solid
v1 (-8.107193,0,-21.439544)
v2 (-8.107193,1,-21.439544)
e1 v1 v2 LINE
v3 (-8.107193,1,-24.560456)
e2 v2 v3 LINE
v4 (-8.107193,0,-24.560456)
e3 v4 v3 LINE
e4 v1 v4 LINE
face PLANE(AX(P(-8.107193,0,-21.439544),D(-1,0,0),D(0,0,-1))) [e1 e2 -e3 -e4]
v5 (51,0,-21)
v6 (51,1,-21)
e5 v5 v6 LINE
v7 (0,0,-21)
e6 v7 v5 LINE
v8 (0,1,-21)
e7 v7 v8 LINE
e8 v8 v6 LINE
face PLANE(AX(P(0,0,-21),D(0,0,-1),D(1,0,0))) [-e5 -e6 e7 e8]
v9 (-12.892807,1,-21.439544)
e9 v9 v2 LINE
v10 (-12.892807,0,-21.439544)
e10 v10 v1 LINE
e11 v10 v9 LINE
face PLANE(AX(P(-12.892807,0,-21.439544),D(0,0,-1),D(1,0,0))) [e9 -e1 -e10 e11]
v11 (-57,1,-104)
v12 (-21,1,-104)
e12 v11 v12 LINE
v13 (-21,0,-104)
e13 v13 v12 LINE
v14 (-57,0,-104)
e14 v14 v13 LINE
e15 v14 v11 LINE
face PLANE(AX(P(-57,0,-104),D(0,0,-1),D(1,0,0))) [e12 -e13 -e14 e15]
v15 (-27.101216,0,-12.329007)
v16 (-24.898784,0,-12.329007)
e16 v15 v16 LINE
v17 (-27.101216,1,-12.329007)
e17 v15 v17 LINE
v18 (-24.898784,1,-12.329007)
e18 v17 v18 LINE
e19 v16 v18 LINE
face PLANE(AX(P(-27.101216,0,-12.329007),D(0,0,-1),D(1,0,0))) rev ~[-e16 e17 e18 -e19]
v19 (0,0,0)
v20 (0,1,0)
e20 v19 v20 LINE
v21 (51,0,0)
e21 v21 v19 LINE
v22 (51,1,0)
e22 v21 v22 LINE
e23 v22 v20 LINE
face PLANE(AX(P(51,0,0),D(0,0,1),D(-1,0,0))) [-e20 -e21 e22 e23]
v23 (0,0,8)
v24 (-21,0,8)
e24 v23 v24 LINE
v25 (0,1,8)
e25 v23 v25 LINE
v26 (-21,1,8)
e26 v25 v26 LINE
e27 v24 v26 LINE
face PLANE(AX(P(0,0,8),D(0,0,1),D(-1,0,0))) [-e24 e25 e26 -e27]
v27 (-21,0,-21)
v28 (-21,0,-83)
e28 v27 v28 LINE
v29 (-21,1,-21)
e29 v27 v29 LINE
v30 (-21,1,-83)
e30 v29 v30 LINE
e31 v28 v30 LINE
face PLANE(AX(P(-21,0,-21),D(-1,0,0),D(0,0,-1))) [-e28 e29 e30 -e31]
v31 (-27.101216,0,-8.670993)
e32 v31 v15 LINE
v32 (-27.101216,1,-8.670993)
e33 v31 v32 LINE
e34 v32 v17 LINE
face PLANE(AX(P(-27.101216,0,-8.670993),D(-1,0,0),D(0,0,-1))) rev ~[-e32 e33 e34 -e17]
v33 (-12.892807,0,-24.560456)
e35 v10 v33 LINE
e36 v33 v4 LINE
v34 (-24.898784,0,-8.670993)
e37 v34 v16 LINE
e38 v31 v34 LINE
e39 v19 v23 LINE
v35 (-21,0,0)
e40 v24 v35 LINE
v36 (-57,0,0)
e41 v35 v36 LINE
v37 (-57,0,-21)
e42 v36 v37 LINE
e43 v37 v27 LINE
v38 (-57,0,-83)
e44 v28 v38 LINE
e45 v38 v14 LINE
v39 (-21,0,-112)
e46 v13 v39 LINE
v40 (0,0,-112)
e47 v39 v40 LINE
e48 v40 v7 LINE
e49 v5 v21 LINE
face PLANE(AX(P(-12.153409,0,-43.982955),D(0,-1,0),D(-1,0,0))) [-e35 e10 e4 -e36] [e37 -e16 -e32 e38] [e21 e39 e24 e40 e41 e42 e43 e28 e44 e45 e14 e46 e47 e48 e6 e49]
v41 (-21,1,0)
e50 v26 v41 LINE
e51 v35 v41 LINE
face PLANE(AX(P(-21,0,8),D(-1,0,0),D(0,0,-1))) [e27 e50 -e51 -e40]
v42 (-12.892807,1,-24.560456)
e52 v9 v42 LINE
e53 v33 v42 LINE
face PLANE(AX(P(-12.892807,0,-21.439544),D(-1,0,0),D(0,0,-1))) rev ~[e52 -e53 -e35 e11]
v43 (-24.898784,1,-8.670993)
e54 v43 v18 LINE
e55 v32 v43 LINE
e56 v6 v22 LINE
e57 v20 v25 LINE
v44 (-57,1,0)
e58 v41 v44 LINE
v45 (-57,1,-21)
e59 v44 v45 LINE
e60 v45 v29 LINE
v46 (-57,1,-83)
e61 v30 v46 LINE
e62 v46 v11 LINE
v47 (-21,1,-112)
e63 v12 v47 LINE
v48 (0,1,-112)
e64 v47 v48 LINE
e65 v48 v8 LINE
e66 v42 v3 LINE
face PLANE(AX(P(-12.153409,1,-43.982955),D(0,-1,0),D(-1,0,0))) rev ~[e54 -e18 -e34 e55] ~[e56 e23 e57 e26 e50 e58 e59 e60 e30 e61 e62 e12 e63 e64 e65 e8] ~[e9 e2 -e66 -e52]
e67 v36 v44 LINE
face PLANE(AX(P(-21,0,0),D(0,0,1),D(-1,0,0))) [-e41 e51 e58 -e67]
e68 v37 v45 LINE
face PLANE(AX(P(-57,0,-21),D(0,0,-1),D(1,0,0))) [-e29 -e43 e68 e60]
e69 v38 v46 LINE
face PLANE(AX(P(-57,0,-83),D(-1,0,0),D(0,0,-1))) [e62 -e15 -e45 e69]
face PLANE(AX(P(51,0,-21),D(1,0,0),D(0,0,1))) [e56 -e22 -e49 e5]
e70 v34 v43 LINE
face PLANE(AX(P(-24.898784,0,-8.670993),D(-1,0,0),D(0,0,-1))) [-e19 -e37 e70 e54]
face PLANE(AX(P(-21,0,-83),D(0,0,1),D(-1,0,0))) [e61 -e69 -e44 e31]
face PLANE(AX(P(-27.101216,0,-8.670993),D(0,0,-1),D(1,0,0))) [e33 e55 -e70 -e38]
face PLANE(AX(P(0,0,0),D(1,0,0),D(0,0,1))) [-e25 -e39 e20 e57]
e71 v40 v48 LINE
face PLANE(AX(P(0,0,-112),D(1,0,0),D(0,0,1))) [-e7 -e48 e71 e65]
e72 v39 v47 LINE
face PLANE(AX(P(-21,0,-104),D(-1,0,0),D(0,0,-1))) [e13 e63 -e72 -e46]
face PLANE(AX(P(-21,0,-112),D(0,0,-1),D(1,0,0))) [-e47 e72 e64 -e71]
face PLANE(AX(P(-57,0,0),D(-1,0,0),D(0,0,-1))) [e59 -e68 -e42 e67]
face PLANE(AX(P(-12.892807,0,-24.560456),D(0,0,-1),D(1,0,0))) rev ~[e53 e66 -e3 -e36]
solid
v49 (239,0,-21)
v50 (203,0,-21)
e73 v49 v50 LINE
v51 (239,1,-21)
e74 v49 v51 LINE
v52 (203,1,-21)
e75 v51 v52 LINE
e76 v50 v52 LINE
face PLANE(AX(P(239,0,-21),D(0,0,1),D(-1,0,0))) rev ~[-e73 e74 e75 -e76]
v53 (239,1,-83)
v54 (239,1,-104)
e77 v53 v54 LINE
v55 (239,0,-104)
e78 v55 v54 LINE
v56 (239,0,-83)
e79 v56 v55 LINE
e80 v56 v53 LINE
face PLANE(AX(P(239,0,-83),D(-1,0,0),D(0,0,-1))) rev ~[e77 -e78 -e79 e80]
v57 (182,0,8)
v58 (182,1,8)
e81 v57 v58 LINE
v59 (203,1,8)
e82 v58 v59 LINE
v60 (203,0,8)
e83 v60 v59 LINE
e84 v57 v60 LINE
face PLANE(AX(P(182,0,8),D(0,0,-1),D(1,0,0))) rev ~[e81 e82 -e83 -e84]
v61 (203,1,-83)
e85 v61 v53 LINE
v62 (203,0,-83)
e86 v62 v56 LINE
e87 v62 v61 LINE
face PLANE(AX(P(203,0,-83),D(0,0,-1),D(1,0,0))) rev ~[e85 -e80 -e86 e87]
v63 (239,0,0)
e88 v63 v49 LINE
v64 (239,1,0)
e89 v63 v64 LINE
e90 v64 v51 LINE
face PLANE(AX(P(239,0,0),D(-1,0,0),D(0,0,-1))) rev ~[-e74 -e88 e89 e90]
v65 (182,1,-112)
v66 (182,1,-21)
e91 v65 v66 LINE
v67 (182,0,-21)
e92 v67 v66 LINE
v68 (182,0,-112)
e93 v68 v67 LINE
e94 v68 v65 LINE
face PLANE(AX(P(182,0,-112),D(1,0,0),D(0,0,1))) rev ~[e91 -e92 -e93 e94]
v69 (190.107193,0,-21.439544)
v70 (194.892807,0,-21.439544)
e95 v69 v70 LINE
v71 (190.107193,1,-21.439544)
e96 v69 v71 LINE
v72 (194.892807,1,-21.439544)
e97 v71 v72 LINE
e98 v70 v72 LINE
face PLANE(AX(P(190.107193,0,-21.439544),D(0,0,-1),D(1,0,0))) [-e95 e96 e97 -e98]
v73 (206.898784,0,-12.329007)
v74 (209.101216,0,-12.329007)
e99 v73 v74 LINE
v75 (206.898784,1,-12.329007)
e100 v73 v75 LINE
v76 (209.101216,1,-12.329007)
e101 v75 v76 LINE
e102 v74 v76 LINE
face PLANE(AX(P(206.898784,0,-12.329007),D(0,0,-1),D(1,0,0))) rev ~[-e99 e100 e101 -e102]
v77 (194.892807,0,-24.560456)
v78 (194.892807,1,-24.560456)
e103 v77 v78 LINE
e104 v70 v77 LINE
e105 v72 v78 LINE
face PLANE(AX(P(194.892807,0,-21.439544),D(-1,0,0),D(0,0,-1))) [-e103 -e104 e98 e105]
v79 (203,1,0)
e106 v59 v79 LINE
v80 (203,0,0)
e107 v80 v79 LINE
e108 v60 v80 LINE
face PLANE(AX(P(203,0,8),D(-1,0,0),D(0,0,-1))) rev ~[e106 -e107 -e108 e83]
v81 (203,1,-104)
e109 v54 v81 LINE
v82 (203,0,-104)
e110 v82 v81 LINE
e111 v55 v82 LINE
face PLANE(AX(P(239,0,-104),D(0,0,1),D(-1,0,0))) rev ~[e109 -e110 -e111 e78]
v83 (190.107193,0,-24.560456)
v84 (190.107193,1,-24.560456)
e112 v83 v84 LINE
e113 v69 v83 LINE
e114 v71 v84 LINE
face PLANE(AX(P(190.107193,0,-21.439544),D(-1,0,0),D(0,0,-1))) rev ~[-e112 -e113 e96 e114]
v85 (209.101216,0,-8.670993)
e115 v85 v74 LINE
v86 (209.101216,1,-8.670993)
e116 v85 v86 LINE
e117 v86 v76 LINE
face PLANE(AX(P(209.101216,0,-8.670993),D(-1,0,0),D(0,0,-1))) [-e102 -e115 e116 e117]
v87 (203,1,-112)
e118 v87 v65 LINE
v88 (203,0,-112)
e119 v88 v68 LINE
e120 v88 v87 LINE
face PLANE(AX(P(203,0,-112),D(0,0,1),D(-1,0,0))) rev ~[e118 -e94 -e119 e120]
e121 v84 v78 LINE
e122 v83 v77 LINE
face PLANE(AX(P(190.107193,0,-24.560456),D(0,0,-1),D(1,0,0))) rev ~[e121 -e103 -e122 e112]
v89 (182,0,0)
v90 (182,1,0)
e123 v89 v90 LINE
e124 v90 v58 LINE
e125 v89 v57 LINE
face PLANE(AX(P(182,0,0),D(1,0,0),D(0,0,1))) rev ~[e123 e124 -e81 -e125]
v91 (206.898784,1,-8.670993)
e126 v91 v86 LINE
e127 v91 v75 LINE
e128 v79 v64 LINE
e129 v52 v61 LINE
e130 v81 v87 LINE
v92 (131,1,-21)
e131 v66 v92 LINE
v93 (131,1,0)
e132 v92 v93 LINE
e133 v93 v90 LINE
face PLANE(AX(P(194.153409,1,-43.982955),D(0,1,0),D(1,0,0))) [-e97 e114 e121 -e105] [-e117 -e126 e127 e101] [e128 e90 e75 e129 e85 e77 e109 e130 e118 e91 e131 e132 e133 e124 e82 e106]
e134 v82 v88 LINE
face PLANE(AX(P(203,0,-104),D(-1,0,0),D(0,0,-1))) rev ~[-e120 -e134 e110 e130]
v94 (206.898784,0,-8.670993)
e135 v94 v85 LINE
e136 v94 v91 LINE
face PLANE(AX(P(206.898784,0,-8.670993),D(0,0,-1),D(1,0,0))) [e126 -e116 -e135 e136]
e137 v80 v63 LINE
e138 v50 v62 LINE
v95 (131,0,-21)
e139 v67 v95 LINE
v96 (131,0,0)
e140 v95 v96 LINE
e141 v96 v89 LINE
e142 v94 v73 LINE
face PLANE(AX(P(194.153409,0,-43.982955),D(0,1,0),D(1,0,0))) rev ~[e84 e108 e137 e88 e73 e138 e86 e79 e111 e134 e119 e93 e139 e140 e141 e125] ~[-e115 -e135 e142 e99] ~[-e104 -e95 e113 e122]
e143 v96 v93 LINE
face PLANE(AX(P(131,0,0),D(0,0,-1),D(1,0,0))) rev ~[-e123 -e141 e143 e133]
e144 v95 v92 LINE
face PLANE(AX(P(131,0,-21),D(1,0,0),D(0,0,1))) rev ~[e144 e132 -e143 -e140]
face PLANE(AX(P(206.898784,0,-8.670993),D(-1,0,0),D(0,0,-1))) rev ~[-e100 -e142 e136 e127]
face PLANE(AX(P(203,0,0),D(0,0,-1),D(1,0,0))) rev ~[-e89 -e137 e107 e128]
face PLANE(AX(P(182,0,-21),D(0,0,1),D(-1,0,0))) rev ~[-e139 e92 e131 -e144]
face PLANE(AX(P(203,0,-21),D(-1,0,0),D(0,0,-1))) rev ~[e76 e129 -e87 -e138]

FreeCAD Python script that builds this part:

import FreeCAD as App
import Part
import Sketcher


def add_polygon(sketch, points):
    """Adds a closed chain of lines whose ends are joined by coincident constraints."""
    first, n = sketch.GeometryCount, len(points)
    for a, b in zip(points, points[1:] + points[:1]):
        sketch.addGeometry(Part.LineSegment(App.Vector(*a, 0), App.Vector(*b, 0)), False)
    for i in range(n):
        sketch.addConstraint(Sketcher.Constraint("Coincident", first + i, 2, first + (i + 1) % n, 1))

doc = App.newDocument("Part")
params = doc.addObject("Spreadsheet::Sheet", "Params")
for row, (alias, value) in enumerate([
    ("sketch1_width", "51 mm"),
    ("sketch1_width2", "21 mm"),
    ("sketch1_width3", "36 mm"),
    ("sketch1_height", "8 mm"),
    ("sketch1_height2", "91 mm"),
    ("pad1_length", "1 mm"),
    ("sketch2_width", "21 mm"),
    ("sketch2_width2", "51 mm"),
    ("sketch2_width3", "36 mm"),
    ("sketch2_height", "8 mm"),
    ("sketch2_height2", "91 mm"),
    ("pad2_length", "1 mm"),
], start=1):
    params.set(f"A{row}", alias)
    params.set(f"B{row}", "=" + value)
    params.setAlias(f"B{row}", alias)

body = doc.addObject("PartDesign::Body", "Body")

sketch1 = body.newObject("Sketcher::SketchObject", "Sketch")
sketch1.AttachmentSupport = (doc.getObject("XZ_Plane"), [""])
sketch1.MapMode = "FlatFace"
add_polygon(sketch1, [(0, 8), (0, 0), (51, 0), (51, -21), (0, -21), (0, -112), (-21, -112), (-21, -104), (-57, -104), (-57, -83), (-21, -83), (-21, -21), (-57, -21), (-57, 0), (-21, 0), (-21, 8)])
add_polygon(sketch1, [(-27.1, -8.7), (-27.1, -12.3), (-24.9, -12.3), (-24.9, -8.7)])
add_polygon(sketch1, [(-12.9, -21.4), (-12.9, -24.6), (-8.1, -24.6), (-8.1, -21.4)])
sketch1.addConstraint([
    Sketcher.Constraint("Vertical", 0),
    Sketcher.Constraint("Horizontal", 1),
    Sketcher.Constraint("Vertical", 2),
    Sketcher.Constraint("Horizontal", 3),
    Sketcher.Constraint("Vertical", 4),
    Sketcher.Constraint("Horizontal", 5),
    Sketcher.Constraint("Vertical", 6),
    Sketcher.Constraint("Horizontal", 7),
    Sketcher.Constraint("Vertical", 8),
    Sketcher.Constraint("Horizontal", 9),
    Sketcher.Constraint("Vertical", 10),
    Sketcher.Constraint("Horizontal", 11),
    Sketcher.Constraint("Vertical", 12),
    Sketcher.Constraint("Horizontal", 13),
    Sketcher.Constraint("Vertical", 14),
    Sketcher.Constraint("Horizontal", 15),
    Sketcher.Constraint("Vertical", 16),
    Sketcher.Constraint("Horizontal", 17),
    Sketcher.Constraint("Vertical", 18),
    Sketcher.Constraint("Horizontal", 19),
    Sketcher.Constraint("Vertical", 20),
    Sketcher.Constraint("Horizontal", 21),
    Sketcher.Constraint("Vertical", 22),
    Sketcher.Constraint("Horizontal", 23),
    Sketcher.Constraint("Coincident", 0, 2, -1, 1),
    Sketcher.Constraint("PointOnObject", 3, 2, -2),
    Sketcher.Constraint("PointOnObject", 12, 2, -1),
    Sketcher.Constraint("Horizontal", 3, 2, 10, 2),
    Sketcher.Constraint("Vertical", 6, 2, 9, 2),
    Sketcher.Constraint("Vertical", 8, 2, 11, 2),
    Sketcher.Constraint("Vertical", 10, 2, 13, 2),
    Sketcher.Constraint("Equal", 15, 2),
    Sketcher.Constraint("Equal", 0, 6),
    Sketcher.Constraint("Equal", 2, 8),
    Sketcher.Constraint("DistanceX", 1, 1, 1, 2, 51.0),
    Sketcher.Constraint("DistanceX", 5, 2, 5, 1, 21.0),
    Sketcher.Constraint("DistanceX", 7, 2, 7, 1, 36.0),
    Sketcher.Constraint("DistanceY", 0, 2, 0, 1, 8.0),
    Sketcher.Constraint("DistanceY", 4, 2, 4, 1, 91.0),
    Sketcher.Constraint("DistanceX", 17, 1, 17, 2, 2.202432),
    Sketcher.Constraint("DistanceX", 21, 1, 21, 2, 4.785615),
    Sketcher.Constraint("DistanceY", 16, 2, 16, 1, 3.658014),
    Sketcher.Constraint("DistanceY", 20, 2, 20, 1, 3.120912),
    Sketcher.Constraint("DistanceY", 20, 2, 17, 2, 12.231449),
    Sketcher.Constraint("DistanceX", 16, 2, 20, 2, 14.208409),
    Sketcher.Constraint("DistanceX", 16, 2, -1, 1, 27.101216),
    Sketcher.Constraint("DistanceY", 16, 2, -1, 1, 12.329007),
])
sketch1.setExpression("Constraints[58]", "Params.sketch1_width")
sketch1.setExpression("Constraints[59]", "Params.sketch1_width2")
sketch1.setExpression("Constraints[60]", "Params.sketch1_width3")
sketch1.setExpression("Constraints[61]", "Params.sketch1_height")
sketch1.setExpression("Constraints[62]", "Params.sketch1_height2")
pad1 = body.newObject("PartDesign::Pad", "Pad")
pad1.Profile = sketch1
pad1.setExpression("Length", "Params.pad1_length")
pad1.Reversed = True
body2 = doc.addObject("PartDesign::Body", "Body001")

sketch2 = body2.newObject("Sketcher::SketchObject", "Sketch001")
sketch2.AttachmentSupport = (doc.getObject("XZ_Plane001"), [""])
sketch2.MapMode = "FlatFace"
add_polygon(sketch2, [(203, -104), (203, -112), (182, -112), (182, -21), (131, -21), (131, 0), (182, 0), (182, 8), (203, 8), (203, 0), (239, 0), (239, -21), (203, -21), (203, -83), (239, -83), (239, -104)])
add_polygon(sketch2, [(209.1, -8.7), (206.9, -8.7), (206.9, -12.3), (209.1, -12.3)])
add_polygon(sketch2, [(194.9, -21.4), (190.1, -21.4), (190.1, -24.6), (194.9, -24.6)])
sketch2.addConstraint([
    Sketcher.Constraint("Vertical", 0),
    Sketcher.Constraint("Horizontal", 1),
    Sketcher.Constraint("Vertical", 2),
    Sketcher.Constraint("Horizontal", 3),
    Sketcher.Constraint("Vertical", 4),
    Sketcher.Constraint("Horizontal", 5),
    Sketcher.Constraint("Vertical", 6),
    Sketcher.Constraint("Horizontal", 7),
    Sketcher.Constraint("Vertical", 8),
    Sketcher.Constraint("Horizontal", 9),
    Sketcher.Constraint("Vertical", 10),
    Sketcher.Constraint("Horizontal", 11),
    Sketcher.Constraint("Vertical", 12),
    Sketcher.Constraint("Horizontal", 13),
    Sketcher.Constraint("Vertical", 14),
    Sketcher.Constraint("Horizontal", 15),
    Sketcher.Constraint("Horizontal", 16),
    Sketcher.Constraint("Vertical", 17),
    Sketcher.Constraint("Horizontal", 18),
    Sketcher.Constraint("Vertical", 19),
    Sketcher.Constraint("Horizontal", 20),
    Sketcher.Constraint("Vertical", 21),
    Sketcher.Constraint("Horizontal", 22),
    Sketcher.Constraint("Vertical", 23),
    Sketcher.Constraint("PointOnObject", 4, 2, -1),
    Sketcher.Constraint("PointOnObject", 8, 2, -1),
    Sketcher.Constraint("Horizontal", 3, 2, 10, 2),
    Sketcher.Constraint("Vertical", 2, 2, 5, 2),
    Sketcher.Constraint("Vertical", 0, 2, 7, 2),
    Sketcher.Constraint("Vertical", 8, 2, 11, 2),
    Sketcher.Constraint("Vertical", 10, 2, 13, 2),
    Sketcher.Constraint("Equal", 7, 4),
    Sketcher.Constraint("Equal", 0, 6),
    Sketcher.Constraint("Equal", 10, 14),
    Sketcher.Constraint("DistanceX", 1, 2, 1, 1, 21.0),
    Sketcher.Constraint("DistanceX", 3, 2, 3, 1, 51.0),
    Sketcher.Constraint("DistanceX", 9, 1, 9, 2, 36.0),
    Sketcher.Constraint("DistanceY", 0, 2, 0, 1, 8.0),
    Sketcher.Constraint("DistanceY", 2, 1, 2, 2, 91.0),
    Sketcher.Constraint("DistanceX", -1, 1, 0, 2, 203.0),
    Sketcher.Constraint("DistanceX", 16, 2, 16, 1, 2.202432),
    Sketcher.Constraint("DistanceX", 20, 2, 20, 1, 4.785615),
    Sketcher.Constraint("DistanceY", 17, 2, 17, 1, 3.658014),
    Sketcher.Constraint("DistanceY", 21, 2, 21, 1, 3.120912),
    Sketcher.Constraint("DistanceX", 20, 2, 17, 2, 16.791591),
    Sketcher.Constraint("DistanceY", 20, 2, 16, 2, 12.768551),
    Sketcher.Constraint("DistanceX", -1, 1, 16, 2, 206.898784),
    Sketcher.Constraint("DistanceY", 16, 2, -1, 1, 8.670993),
])
sketch2.setExpression("Constraints[58]", "Params.sketch2_width")
sketch2.setExpression("Constraints[59]", "Params.sketch2_width2")
sketch2.setExpression("Constraints[60]", "Params.sketch2_width3")
sketch2.setExpression("Constraints[61]", "Params.sketch2_height")
sketch2.setExpression("Constraints[62]", "Params.sketch2_height2")
pad2 = body2.newObject("PartDesign::Pad", "Pad001")
pad2.Profile = sketch2
pad2.setExpression("Length", "Params.pad2_length")
pad2.Reversed = True

doc.recompute()
